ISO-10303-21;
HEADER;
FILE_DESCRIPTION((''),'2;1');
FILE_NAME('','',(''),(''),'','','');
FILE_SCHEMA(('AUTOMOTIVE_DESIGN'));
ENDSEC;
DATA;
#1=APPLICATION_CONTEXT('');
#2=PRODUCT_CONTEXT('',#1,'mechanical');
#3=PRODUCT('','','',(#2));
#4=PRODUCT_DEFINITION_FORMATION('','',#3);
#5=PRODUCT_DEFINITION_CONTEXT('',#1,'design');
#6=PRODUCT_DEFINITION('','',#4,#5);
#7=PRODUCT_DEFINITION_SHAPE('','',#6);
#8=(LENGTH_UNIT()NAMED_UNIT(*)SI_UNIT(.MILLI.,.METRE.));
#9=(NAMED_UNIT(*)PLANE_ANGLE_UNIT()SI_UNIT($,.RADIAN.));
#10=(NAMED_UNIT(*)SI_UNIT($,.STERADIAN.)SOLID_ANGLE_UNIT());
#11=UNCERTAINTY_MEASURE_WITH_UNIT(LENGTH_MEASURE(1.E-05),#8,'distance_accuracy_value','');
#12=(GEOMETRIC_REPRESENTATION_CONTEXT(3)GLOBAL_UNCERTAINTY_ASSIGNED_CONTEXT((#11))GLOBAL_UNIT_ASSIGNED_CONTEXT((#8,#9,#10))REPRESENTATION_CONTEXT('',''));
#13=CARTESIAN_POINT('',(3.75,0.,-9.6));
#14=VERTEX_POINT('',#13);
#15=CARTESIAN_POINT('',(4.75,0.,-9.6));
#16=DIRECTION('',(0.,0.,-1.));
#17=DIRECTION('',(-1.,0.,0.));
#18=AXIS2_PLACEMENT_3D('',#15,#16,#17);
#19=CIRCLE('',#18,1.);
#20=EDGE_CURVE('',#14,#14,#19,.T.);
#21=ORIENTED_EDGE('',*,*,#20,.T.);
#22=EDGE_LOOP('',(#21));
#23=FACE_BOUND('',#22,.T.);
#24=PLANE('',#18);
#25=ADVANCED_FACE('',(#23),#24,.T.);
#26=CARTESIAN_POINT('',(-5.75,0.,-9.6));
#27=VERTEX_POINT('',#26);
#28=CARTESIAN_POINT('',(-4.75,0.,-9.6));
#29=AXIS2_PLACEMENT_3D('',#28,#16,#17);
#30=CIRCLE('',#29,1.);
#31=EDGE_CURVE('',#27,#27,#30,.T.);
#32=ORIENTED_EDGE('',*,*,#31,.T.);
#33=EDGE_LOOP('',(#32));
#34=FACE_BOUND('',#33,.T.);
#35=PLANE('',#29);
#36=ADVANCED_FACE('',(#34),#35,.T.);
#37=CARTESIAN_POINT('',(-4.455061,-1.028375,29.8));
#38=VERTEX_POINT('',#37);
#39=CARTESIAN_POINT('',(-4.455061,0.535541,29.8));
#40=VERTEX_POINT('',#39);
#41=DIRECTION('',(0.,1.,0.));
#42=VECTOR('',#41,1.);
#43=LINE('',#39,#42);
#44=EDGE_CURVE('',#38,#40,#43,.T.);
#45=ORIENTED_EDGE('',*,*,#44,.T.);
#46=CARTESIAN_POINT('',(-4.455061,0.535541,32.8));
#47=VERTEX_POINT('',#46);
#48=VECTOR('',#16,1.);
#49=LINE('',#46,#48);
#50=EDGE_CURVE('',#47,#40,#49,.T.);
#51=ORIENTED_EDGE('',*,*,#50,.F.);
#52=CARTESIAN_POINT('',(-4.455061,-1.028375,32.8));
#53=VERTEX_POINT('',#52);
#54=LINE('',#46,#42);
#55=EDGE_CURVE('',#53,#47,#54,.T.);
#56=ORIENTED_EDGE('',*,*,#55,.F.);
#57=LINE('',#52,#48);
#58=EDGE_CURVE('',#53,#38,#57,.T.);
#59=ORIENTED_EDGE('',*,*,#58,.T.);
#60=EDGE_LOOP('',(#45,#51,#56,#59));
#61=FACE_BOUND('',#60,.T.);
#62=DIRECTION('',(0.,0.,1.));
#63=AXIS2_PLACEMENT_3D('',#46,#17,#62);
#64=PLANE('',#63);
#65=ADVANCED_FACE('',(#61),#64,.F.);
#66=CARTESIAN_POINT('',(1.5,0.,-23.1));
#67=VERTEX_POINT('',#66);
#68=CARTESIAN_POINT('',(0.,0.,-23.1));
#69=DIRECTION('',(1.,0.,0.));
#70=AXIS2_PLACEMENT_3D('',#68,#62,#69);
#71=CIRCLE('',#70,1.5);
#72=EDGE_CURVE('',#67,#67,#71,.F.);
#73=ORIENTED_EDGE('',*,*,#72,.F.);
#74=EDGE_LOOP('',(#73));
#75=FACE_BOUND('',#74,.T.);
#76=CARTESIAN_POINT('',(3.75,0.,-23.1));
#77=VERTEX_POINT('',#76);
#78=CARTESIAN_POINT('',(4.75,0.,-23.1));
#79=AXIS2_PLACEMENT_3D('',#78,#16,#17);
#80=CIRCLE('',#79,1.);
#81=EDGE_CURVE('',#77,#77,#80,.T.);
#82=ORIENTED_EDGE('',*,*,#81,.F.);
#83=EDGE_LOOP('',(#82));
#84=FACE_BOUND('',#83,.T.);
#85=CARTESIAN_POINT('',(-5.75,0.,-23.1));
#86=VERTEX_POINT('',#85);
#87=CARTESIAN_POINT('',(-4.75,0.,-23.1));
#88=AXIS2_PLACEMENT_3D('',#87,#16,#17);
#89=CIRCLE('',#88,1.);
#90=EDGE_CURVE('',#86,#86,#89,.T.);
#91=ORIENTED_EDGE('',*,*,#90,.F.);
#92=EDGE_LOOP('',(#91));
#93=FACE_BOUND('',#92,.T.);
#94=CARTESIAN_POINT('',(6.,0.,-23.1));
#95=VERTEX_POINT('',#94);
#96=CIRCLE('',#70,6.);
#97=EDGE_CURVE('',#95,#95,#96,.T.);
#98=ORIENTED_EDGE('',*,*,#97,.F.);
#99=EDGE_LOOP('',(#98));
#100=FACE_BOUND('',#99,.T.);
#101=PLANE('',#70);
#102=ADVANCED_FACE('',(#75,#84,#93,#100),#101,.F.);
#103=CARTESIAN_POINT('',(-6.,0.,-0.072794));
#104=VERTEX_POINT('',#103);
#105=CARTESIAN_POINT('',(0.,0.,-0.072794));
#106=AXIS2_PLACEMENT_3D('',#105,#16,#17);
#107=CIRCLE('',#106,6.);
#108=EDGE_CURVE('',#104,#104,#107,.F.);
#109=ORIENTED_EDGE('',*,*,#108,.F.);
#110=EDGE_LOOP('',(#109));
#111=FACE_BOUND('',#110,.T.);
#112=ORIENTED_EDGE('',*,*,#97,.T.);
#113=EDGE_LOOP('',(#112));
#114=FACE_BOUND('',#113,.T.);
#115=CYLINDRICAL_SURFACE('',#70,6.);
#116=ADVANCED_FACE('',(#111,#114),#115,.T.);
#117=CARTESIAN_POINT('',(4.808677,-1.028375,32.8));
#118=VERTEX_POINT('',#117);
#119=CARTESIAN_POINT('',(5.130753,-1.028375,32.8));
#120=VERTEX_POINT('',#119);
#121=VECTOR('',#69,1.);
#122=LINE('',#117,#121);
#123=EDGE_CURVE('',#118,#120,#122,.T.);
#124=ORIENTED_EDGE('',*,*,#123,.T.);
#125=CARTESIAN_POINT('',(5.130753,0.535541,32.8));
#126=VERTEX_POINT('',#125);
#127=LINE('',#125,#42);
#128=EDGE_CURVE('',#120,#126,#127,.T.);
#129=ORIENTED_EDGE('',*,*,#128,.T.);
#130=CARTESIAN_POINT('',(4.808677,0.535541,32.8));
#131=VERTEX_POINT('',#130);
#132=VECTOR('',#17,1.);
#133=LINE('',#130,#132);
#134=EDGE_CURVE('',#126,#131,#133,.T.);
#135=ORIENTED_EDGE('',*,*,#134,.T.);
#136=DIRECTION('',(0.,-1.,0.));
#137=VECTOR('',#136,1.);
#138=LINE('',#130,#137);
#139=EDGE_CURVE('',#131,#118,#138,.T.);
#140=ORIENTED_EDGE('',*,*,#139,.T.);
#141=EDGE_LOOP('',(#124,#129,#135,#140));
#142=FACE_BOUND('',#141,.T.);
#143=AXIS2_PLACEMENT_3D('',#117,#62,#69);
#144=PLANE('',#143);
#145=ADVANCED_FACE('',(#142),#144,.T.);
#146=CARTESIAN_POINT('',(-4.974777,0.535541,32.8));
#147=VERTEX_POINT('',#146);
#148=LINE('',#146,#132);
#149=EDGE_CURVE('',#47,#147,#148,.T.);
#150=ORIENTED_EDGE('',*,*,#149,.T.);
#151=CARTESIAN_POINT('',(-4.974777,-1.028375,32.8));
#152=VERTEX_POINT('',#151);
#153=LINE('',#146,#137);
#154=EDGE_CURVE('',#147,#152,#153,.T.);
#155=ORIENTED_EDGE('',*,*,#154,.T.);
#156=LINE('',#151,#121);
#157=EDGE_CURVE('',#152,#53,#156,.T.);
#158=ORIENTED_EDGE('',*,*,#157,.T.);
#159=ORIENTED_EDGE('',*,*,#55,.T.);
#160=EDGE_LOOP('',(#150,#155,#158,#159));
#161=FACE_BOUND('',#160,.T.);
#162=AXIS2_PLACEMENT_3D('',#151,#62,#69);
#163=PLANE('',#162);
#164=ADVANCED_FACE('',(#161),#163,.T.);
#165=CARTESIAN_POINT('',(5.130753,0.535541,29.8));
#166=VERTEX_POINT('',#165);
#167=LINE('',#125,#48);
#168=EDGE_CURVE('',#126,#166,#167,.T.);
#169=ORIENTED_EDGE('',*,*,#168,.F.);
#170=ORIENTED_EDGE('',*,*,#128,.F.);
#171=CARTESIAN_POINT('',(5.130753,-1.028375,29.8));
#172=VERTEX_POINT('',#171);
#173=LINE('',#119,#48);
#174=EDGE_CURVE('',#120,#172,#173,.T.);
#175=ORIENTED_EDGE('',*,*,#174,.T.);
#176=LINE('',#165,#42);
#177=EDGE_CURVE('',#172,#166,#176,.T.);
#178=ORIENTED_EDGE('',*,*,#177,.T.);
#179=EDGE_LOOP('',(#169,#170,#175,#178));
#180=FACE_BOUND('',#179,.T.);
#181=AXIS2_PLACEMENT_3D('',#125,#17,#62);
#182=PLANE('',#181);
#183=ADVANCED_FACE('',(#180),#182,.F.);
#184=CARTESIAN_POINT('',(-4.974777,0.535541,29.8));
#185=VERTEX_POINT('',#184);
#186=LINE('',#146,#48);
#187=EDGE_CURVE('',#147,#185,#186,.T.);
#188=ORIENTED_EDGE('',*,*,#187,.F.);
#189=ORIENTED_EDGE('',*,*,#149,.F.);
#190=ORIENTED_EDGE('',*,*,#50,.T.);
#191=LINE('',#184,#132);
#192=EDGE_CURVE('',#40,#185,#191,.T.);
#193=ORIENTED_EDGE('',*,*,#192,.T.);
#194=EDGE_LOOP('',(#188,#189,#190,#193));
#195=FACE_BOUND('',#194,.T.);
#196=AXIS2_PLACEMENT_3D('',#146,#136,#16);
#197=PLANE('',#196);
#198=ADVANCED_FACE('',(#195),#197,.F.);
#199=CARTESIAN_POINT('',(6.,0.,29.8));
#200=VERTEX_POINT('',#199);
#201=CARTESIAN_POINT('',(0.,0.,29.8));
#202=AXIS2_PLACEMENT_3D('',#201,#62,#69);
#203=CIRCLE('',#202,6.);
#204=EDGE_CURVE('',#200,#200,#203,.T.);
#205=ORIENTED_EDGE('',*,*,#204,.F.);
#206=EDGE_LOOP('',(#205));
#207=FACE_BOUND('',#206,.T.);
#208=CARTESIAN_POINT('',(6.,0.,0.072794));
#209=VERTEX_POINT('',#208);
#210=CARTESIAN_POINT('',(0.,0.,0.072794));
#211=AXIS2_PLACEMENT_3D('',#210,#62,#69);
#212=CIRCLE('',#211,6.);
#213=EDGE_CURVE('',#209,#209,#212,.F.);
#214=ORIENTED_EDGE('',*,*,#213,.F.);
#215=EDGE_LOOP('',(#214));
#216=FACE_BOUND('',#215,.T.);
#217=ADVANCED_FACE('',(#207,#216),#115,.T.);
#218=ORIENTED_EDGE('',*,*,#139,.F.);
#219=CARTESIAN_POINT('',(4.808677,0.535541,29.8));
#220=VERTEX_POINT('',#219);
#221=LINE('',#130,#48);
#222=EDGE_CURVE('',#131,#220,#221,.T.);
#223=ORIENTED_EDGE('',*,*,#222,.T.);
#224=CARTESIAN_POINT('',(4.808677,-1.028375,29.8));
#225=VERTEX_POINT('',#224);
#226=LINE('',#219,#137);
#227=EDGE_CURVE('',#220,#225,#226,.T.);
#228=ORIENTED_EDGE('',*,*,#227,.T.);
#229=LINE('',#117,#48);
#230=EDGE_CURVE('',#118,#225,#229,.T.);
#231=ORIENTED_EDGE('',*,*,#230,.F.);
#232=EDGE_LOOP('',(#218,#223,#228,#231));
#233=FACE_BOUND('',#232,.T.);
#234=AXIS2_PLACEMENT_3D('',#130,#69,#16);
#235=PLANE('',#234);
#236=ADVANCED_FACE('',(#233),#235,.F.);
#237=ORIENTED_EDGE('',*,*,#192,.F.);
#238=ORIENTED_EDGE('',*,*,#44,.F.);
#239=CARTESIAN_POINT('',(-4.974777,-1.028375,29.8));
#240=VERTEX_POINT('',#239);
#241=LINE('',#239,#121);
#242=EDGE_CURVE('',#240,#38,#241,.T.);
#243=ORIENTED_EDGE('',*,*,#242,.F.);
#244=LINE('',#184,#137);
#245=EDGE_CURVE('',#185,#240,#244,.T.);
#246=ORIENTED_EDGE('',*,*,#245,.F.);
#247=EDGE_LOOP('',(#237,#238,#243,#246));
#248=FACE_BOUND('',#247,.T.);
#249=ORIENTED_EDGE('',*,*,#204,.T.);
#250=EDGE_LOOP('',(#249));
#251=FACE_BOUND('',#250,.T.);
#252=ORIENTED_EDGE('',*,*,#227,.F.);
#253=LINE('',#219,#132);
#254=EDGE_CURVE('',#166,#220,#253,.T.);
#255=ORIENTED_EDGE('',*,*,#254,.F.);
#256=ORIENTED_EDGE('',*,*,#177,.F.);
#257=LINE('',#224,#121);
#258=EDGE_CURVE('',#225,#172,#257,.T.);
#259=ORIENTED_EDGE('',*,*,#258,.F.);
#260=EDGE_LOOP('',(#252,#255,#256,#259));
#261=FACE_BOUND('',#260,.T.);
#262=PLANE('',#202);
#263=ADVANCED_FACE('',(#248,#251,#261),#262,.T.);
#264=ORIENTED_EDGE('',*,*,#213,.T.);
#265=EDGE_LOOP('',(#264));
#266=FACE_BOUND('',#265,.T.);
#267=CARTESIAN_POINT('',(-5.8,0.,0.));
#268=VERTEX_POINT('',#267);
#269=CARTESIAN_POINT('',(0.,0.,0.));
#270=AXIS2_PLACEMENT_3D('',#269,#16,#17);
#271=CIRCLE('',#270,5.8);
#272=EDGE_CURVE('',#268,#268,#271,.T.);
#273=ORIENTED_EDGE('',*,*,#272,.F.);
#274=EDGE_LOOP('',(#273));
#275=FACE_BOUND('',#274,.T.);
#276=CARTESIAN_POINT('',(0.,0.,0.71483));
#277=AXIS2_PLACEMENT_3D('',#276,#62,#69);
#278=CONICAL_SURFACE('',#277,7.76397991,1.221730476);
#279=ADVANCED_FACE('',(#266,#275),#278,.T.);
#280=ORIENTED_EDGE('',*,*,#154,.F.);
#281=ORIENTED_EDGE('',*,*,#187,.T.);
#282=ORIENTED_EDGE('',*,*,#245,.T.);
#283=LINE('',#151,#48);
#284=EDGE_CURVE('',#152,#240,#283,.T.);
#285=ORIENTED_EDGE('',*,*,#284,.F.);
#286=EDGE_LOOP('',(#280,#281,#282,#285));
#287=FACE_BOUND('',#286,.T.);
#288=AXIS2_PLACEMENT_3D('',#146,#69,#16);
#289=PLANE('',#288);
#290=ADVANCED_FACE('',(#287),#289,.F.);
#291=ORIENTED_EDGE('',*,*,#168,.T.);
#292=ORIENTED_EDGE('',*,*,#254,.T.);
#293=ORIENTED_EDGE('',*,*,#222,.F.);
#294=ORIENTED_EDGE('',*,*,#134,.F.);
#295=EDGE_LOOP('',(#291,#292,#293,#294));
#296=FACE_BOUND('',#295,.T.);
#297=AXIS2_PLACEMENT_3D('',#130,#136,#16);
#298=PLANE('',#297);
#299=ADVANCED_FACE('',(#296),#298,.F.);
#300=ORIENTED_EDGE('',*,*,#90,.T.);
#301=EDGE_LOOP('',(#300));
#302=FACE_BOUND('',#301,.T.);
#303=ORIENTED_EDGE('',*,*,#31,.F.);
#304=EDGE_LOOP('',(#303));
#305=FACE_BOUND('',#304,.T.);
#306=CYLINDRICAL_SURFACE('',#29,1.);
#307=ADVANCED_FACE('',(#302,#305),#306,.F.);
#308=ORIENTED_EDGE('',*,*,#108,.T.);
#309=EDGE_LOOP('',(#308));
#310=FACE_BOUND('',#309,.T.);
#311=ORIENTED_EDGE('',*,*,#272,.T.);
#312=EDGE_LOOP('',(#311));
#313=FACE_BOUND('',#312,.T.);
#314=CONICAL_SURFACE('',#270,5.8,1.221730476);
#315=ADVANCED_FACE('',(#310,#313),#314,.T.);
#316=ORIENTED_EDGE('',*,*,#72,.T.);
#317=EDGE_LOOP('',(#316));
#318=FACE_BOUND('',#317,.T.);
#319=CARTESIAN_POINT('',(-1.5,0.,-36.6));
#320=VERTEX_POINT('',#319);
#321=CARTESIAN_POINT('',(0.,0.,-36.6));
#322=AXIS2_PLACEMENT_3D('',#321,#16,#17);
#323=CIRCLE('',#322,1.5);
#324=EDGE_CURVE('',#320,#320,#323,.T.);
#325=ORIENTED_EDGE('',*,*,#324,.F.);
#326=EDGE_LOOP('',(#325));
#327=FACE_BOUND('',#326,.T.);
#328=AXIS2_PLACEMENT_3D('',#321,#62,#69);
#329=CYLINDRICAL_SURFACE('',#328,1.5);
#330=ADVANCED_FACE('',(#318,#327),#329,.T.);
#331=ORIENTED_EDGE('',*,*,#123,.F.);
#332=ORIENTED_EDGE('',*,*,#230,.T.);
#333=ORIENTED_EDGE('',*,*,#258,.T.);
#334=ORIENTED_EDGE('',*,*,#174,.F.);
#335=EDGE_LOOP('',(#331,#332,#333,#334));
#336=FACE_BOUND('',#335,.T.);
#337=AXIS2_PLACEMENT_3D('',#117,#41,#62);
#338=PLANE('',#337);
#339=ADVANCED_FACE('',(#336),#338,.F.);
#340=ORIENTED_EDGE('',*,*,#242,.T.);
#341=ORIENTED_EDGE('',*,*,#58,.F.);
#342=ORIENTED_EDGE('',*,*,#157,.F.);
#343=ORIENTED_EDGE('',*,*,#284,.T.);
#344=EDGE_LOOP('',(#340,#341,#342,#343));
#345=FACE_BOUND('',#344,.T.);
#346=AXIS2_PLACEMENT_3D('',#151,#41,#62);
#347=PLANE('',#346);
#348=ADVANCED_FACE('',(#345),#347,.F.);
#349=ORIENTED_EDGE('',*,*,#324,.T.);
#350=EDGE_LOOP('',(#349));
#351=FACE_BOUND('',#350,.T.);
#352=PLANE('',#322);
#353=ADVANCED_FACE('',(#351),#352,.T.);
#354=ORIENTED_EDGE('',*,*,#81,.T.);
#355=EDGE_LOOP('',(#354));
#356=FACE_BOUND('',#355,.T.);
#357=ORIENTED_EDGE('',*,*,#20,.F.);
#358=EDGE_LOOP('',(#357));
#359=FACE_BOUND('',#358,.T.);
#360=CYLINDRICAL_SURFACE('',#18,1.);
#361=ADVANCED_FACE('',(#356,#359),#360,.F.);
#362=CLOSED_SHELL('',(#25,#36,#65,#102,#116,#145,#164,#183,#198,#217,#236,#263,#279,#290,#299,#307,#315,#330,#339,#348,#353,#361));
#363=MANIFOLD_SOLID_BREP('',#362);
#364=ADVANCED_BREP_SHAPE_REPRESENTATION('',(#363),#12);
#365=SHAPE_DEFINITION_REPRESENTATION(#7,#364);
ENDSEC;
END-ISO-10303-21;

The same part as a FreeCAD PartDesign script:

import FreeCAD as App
import Part
import Sketcher
from FreeCAD import Vector
Q = App.Units.Quantity

doc = App.newDocument("Part")
body = doc.addObject("PartDesign::Body", "Body")

sketch1 = doc.addObject("Sketcher::SketchObject", "Sketch")
body.addObject(sketch1)
sketch1.AttachmentSupport = (doc.XY_Plane, [""])
sketch1.MapMode = "FlatFace"
sketch1.addGeometry(Part.Circle(Vector(0, 0, 0), Vector(0, 0, 1), 6), False)
sketch1.addConstraint(Sketcher.Constraint("Coincident", 0, 3, -1, 1))
sketch1.addConstraint(Sketcher.Constraint("Diameter", 0, Q("12 mm")))
pad1 = doc.addObject("PartDesign::Pad", "Pad")
body.addObject(pad1)
pad1.Profile = sketch1
pad1.Type = "TwoLengths"
pad1.Length = 29.8
pad1.Length2 = 23.1

sketch2 = doc.addObject("Sketcher::SketchObject", "Sketch001")
body.addObject(sketch2)
sketch2.AttachmentSupport = (doc.XY_Plane, [""])
sketch2.MapMode = "FlatFace"
sketch2.AttachmentOffset = App.Placement(Vector(0, 0, 29.8), App.Rotation())
sketch2.addGeometry(Part.LineSegment(Vector(4.808677, 0.535541, 0), Vector(4.808677, -1.028375, 0)), False)
sketch2.addGeometry(Part.LineSegment(Vector(4.808677, -1.028375, 0), Vector(5.130753, -1.028375, 0)), False)
sketch2.addGeometry(Part.LineSegment(Vector(5.130753, -1.028375, 0), Vector(5.130753, 0.535541, 0)), False)
sketch2.addGeometry(Part.LineSegment(Vector(5.130753, 0.535541, 0), Vector(4.808677, 0.535541, 0)), False)
sketch2.addGeometry(Part.LineSegment(Vector(-4.974777, 0.535541, 0), Vector(-4.974777, -1.028375, 0)), False)
sketch2.addGeometry(Part.LineSegment(Vector(-4.974777, -1.028375, 0), Vector(-4.455061, -1.028375, 0)), False)
sketch2.addGeometry(Part.LineSegment(Vector(-4.455061, -1.028375, 0), Vector(-4.455061, 0.535541, 0)), False)
sketch2.addGeometry(Part.LineSegment(Vector(-4.455061, 0.535541, 0), Vector(-4.974777, 0.535541, 0)), False)
sketch2.addConstraint(Sketcher.Constraint("Coincident", 0, 2, 1, 1))
sketch2.addConstraint(Sketcher.Constraint("Coincident", 1, 2, 2, 1))
sketch2.addConstraint(Sketcher.Constraint("Coincident", 2, 2, 3, 1))
sketch2.addConstraint(Sketcher.Constraint("Coincident", 3, 2, 0, 1))
sketch2.addConstraint(Sketcher.Constraint("Coincident", 4, 2, 5, 1))
sketch2.addConstraint(Sketcher.Constraint("Coincident", 5, 2, 6, 1))
sketch2.addConstraint(Sketcher.Constraint("Coincident", 6, 2, 7, 1))
sketch2.addConstraint(Sketcher.Constraint("Coincident", 7, 2, 4, 1))
sketch2.addConstraint(Sketcher.Constraint("Vertical", 0))
sketch2.addConstraint(Sketcher.Constraint("Horizontal", 1))
sketch2.addConstraint(Sketcher.Constraint("Vertical", 2))
sketch2.addConstraint(Sketcher.Constraint("Horizontal", 3))
sketch2.addConstraint(Sketcher.Constraint("Vertical", 4))
sketch2.addConstraint(Sketcher.Constraint("Horizontal", 5))
sketch2.addConstraint(Sketcher.Constraint("Vertical", 6))
sketch2.addConstraint(Sketcher.Constraint("Horizontal", 7))
sketch2.addConstraint(Sketcher.Constraint("Horizontal", 1, 2, 4, 2))
sketch2.addConstraint(Sketcher.Constraint("Horizontal", 3, 2, 6, 2))
sketch2.addConstraint(Sketcher.Constraint("DistanceX", 1, 1, 1, 2, Q("0.322076 mm")))
sketch2.addConstraint(Sketcher.Constraint("DistanceX", 5, 1, 5, 2, Q("0.519715 mm")))
sketch2.addConstraint(Sketcher.Constraint("DistanceY", 0, 2, 0, 1, Q("1.563916 mm")))
sketch2.addConstraint(Sketcher.Constraint("DistanceY", -1, 1, 2, 2, Q("0.535541 mm")))
sketch2.addConstraint(Sketcher.Constraint("DistanceX", 5, 2, -1, 1, Q("4.455061 mm")))
sketch2.addConstraint(Sketcher.Constraint("DistanceX", 4, 2, 1, 2, Q("10.10553 mm")))
pad2 = doc.addObject("PartDesign::Pad", "Pad001")
body.addObject(pad2)
pad2.Profile = sketch2
pad2.Length = 3

sketch3 = doc.addObject("Sketcher::SketchObject", "Sketch002")
body.addObject(sketch3)
sketch3.AttachmentSupport = (doc.XY_Plane, [""])
sketch3.MapMode = "FlatFace"
sketch3.AttachmentOffset = App.Placement(Vector(0, 0, -23.1), App.Rotation())
sketch3.addGeometry(Part.Circle(Vector(0, 0, 0), Vector(0, 0, 1), 1.5), False)
sketch3.addConstraint(Sketcher.Constraint("Coincident", 0, 3, -1, 1))
sketch3.addConstraint(Sketcher.Constraint("Diameter", 0, Q("3 mm")))
pad3 = doc.addObject("PartDesign::Pad", "Pad002")
body.addObject(pad3)
pad3.Profile = sketch3
pad3.Length = 13.5
pad3.Reversed = True

sketch4 = doc.addObject("Sketcher::SketchObject", "Sketch003")
body.addObject(sketch4)
sketch4.AttachmentSupport = (doc.XY_Plane, [""])
sketch4.MapMode = "FlatFace"
sketch4.AttachmentOffset = App.Placement(Vector(0, 0, -23.1), App.Rotation())
sketch4.addGeometry(Part.Circle(Vector(-4.75, 0, 0), Vector(0, 0, 1), 1), False)
sketch4.addGeometry(Part.Circle(Vector(4.75, 0, 0), Vector(0, 0, 1), 1), False)
sketch4.addConstraint(Sketcher.Constraint("Equal", 0, 1))
sketch4.addConstraint(Sketcher.Constraint("Symmetric", 0, 3, 1, 3, -1, 1))
sketch4.addConstraint(Sketcher.Constraint("PointOnObject", 0, 3, -1))
sketch4.addConstraint(Sketcher.Constraint("Diameter", 0, Q("2 mm")))
sketch4.addConstraint(Sketcher.Constraint("DistanceX", 0, 3, 1, 3, Q("9.5 mm")))
pocket1 = doc.addObject("PartDesign::Pocket", "Pocket")
body.addObject(pocket1)
pocket1.Profile = sketch4
pocket1.Length = 13.5
pocket1.Reversed = True

sketch5 = doc.addObject("Sketcher::SketchObject", "Sketch004")
body.addObject(sketch5)
sketch5.AttachmentSupport = (doc.YZ_Plane, [""])
sketch5.MapMode = "FlatFace"
sketch5.addGeometry(Part.LineSegment(Vector(5.8, 0, 0), Vector(7.76398, -0.71483, 0)), False)
sketch5.addGeometry(Part.LineSegment(Vector(7.76398, -0.71483, 0), Vector(7.76398, 0.71483, 0)), False)
sketch5.addGeometry(Part.LineSegment(Vector(7.76398, 0.71483, 0), Vector(5.8, 0, 0)), False)
sketch5.addConstraint(Sketcher.Constraint("Coincident", 0, 2, 1, 1))
sketch5.addConstraint(Sketcher.Constraint("Coincident", 1, 2, 2, 1))
sketch5.addConstraint(Sketcher.Constraint("Coincident", 2, 2, 0, 1))
sketch5.addConstraint(Sketcher.Constraint("Vertical", 1))
sketch5.addConstraint(Sketcher.Constraint("PointOnObject", 2, 2, -1))
sketch5.addConstraint(Sketcher.Constraint("Equal", 0, 2))
sketch5.addConstraint(Sketcher.Constraint("Angle", 0, Q("-20 deg")))
sketch5.addConstraint(Sketcher.Constraint("DistanceX", -1, 1, 2, 2, Q("5.8 mm")))
sketch5.addConstraint(Sketcher.Constraint("DistanceY", 1, 1, 1, 2, Q("1.42966 mm")))
groove = doc.addObject("PartDesign::Groove", "Groove")
body.addObject(groove)
groove.Profile = sketch5
groove.ReferenceAxis = (sketch5, ["V_Axis"])
groove.Angle = 360

doc.recompute()
